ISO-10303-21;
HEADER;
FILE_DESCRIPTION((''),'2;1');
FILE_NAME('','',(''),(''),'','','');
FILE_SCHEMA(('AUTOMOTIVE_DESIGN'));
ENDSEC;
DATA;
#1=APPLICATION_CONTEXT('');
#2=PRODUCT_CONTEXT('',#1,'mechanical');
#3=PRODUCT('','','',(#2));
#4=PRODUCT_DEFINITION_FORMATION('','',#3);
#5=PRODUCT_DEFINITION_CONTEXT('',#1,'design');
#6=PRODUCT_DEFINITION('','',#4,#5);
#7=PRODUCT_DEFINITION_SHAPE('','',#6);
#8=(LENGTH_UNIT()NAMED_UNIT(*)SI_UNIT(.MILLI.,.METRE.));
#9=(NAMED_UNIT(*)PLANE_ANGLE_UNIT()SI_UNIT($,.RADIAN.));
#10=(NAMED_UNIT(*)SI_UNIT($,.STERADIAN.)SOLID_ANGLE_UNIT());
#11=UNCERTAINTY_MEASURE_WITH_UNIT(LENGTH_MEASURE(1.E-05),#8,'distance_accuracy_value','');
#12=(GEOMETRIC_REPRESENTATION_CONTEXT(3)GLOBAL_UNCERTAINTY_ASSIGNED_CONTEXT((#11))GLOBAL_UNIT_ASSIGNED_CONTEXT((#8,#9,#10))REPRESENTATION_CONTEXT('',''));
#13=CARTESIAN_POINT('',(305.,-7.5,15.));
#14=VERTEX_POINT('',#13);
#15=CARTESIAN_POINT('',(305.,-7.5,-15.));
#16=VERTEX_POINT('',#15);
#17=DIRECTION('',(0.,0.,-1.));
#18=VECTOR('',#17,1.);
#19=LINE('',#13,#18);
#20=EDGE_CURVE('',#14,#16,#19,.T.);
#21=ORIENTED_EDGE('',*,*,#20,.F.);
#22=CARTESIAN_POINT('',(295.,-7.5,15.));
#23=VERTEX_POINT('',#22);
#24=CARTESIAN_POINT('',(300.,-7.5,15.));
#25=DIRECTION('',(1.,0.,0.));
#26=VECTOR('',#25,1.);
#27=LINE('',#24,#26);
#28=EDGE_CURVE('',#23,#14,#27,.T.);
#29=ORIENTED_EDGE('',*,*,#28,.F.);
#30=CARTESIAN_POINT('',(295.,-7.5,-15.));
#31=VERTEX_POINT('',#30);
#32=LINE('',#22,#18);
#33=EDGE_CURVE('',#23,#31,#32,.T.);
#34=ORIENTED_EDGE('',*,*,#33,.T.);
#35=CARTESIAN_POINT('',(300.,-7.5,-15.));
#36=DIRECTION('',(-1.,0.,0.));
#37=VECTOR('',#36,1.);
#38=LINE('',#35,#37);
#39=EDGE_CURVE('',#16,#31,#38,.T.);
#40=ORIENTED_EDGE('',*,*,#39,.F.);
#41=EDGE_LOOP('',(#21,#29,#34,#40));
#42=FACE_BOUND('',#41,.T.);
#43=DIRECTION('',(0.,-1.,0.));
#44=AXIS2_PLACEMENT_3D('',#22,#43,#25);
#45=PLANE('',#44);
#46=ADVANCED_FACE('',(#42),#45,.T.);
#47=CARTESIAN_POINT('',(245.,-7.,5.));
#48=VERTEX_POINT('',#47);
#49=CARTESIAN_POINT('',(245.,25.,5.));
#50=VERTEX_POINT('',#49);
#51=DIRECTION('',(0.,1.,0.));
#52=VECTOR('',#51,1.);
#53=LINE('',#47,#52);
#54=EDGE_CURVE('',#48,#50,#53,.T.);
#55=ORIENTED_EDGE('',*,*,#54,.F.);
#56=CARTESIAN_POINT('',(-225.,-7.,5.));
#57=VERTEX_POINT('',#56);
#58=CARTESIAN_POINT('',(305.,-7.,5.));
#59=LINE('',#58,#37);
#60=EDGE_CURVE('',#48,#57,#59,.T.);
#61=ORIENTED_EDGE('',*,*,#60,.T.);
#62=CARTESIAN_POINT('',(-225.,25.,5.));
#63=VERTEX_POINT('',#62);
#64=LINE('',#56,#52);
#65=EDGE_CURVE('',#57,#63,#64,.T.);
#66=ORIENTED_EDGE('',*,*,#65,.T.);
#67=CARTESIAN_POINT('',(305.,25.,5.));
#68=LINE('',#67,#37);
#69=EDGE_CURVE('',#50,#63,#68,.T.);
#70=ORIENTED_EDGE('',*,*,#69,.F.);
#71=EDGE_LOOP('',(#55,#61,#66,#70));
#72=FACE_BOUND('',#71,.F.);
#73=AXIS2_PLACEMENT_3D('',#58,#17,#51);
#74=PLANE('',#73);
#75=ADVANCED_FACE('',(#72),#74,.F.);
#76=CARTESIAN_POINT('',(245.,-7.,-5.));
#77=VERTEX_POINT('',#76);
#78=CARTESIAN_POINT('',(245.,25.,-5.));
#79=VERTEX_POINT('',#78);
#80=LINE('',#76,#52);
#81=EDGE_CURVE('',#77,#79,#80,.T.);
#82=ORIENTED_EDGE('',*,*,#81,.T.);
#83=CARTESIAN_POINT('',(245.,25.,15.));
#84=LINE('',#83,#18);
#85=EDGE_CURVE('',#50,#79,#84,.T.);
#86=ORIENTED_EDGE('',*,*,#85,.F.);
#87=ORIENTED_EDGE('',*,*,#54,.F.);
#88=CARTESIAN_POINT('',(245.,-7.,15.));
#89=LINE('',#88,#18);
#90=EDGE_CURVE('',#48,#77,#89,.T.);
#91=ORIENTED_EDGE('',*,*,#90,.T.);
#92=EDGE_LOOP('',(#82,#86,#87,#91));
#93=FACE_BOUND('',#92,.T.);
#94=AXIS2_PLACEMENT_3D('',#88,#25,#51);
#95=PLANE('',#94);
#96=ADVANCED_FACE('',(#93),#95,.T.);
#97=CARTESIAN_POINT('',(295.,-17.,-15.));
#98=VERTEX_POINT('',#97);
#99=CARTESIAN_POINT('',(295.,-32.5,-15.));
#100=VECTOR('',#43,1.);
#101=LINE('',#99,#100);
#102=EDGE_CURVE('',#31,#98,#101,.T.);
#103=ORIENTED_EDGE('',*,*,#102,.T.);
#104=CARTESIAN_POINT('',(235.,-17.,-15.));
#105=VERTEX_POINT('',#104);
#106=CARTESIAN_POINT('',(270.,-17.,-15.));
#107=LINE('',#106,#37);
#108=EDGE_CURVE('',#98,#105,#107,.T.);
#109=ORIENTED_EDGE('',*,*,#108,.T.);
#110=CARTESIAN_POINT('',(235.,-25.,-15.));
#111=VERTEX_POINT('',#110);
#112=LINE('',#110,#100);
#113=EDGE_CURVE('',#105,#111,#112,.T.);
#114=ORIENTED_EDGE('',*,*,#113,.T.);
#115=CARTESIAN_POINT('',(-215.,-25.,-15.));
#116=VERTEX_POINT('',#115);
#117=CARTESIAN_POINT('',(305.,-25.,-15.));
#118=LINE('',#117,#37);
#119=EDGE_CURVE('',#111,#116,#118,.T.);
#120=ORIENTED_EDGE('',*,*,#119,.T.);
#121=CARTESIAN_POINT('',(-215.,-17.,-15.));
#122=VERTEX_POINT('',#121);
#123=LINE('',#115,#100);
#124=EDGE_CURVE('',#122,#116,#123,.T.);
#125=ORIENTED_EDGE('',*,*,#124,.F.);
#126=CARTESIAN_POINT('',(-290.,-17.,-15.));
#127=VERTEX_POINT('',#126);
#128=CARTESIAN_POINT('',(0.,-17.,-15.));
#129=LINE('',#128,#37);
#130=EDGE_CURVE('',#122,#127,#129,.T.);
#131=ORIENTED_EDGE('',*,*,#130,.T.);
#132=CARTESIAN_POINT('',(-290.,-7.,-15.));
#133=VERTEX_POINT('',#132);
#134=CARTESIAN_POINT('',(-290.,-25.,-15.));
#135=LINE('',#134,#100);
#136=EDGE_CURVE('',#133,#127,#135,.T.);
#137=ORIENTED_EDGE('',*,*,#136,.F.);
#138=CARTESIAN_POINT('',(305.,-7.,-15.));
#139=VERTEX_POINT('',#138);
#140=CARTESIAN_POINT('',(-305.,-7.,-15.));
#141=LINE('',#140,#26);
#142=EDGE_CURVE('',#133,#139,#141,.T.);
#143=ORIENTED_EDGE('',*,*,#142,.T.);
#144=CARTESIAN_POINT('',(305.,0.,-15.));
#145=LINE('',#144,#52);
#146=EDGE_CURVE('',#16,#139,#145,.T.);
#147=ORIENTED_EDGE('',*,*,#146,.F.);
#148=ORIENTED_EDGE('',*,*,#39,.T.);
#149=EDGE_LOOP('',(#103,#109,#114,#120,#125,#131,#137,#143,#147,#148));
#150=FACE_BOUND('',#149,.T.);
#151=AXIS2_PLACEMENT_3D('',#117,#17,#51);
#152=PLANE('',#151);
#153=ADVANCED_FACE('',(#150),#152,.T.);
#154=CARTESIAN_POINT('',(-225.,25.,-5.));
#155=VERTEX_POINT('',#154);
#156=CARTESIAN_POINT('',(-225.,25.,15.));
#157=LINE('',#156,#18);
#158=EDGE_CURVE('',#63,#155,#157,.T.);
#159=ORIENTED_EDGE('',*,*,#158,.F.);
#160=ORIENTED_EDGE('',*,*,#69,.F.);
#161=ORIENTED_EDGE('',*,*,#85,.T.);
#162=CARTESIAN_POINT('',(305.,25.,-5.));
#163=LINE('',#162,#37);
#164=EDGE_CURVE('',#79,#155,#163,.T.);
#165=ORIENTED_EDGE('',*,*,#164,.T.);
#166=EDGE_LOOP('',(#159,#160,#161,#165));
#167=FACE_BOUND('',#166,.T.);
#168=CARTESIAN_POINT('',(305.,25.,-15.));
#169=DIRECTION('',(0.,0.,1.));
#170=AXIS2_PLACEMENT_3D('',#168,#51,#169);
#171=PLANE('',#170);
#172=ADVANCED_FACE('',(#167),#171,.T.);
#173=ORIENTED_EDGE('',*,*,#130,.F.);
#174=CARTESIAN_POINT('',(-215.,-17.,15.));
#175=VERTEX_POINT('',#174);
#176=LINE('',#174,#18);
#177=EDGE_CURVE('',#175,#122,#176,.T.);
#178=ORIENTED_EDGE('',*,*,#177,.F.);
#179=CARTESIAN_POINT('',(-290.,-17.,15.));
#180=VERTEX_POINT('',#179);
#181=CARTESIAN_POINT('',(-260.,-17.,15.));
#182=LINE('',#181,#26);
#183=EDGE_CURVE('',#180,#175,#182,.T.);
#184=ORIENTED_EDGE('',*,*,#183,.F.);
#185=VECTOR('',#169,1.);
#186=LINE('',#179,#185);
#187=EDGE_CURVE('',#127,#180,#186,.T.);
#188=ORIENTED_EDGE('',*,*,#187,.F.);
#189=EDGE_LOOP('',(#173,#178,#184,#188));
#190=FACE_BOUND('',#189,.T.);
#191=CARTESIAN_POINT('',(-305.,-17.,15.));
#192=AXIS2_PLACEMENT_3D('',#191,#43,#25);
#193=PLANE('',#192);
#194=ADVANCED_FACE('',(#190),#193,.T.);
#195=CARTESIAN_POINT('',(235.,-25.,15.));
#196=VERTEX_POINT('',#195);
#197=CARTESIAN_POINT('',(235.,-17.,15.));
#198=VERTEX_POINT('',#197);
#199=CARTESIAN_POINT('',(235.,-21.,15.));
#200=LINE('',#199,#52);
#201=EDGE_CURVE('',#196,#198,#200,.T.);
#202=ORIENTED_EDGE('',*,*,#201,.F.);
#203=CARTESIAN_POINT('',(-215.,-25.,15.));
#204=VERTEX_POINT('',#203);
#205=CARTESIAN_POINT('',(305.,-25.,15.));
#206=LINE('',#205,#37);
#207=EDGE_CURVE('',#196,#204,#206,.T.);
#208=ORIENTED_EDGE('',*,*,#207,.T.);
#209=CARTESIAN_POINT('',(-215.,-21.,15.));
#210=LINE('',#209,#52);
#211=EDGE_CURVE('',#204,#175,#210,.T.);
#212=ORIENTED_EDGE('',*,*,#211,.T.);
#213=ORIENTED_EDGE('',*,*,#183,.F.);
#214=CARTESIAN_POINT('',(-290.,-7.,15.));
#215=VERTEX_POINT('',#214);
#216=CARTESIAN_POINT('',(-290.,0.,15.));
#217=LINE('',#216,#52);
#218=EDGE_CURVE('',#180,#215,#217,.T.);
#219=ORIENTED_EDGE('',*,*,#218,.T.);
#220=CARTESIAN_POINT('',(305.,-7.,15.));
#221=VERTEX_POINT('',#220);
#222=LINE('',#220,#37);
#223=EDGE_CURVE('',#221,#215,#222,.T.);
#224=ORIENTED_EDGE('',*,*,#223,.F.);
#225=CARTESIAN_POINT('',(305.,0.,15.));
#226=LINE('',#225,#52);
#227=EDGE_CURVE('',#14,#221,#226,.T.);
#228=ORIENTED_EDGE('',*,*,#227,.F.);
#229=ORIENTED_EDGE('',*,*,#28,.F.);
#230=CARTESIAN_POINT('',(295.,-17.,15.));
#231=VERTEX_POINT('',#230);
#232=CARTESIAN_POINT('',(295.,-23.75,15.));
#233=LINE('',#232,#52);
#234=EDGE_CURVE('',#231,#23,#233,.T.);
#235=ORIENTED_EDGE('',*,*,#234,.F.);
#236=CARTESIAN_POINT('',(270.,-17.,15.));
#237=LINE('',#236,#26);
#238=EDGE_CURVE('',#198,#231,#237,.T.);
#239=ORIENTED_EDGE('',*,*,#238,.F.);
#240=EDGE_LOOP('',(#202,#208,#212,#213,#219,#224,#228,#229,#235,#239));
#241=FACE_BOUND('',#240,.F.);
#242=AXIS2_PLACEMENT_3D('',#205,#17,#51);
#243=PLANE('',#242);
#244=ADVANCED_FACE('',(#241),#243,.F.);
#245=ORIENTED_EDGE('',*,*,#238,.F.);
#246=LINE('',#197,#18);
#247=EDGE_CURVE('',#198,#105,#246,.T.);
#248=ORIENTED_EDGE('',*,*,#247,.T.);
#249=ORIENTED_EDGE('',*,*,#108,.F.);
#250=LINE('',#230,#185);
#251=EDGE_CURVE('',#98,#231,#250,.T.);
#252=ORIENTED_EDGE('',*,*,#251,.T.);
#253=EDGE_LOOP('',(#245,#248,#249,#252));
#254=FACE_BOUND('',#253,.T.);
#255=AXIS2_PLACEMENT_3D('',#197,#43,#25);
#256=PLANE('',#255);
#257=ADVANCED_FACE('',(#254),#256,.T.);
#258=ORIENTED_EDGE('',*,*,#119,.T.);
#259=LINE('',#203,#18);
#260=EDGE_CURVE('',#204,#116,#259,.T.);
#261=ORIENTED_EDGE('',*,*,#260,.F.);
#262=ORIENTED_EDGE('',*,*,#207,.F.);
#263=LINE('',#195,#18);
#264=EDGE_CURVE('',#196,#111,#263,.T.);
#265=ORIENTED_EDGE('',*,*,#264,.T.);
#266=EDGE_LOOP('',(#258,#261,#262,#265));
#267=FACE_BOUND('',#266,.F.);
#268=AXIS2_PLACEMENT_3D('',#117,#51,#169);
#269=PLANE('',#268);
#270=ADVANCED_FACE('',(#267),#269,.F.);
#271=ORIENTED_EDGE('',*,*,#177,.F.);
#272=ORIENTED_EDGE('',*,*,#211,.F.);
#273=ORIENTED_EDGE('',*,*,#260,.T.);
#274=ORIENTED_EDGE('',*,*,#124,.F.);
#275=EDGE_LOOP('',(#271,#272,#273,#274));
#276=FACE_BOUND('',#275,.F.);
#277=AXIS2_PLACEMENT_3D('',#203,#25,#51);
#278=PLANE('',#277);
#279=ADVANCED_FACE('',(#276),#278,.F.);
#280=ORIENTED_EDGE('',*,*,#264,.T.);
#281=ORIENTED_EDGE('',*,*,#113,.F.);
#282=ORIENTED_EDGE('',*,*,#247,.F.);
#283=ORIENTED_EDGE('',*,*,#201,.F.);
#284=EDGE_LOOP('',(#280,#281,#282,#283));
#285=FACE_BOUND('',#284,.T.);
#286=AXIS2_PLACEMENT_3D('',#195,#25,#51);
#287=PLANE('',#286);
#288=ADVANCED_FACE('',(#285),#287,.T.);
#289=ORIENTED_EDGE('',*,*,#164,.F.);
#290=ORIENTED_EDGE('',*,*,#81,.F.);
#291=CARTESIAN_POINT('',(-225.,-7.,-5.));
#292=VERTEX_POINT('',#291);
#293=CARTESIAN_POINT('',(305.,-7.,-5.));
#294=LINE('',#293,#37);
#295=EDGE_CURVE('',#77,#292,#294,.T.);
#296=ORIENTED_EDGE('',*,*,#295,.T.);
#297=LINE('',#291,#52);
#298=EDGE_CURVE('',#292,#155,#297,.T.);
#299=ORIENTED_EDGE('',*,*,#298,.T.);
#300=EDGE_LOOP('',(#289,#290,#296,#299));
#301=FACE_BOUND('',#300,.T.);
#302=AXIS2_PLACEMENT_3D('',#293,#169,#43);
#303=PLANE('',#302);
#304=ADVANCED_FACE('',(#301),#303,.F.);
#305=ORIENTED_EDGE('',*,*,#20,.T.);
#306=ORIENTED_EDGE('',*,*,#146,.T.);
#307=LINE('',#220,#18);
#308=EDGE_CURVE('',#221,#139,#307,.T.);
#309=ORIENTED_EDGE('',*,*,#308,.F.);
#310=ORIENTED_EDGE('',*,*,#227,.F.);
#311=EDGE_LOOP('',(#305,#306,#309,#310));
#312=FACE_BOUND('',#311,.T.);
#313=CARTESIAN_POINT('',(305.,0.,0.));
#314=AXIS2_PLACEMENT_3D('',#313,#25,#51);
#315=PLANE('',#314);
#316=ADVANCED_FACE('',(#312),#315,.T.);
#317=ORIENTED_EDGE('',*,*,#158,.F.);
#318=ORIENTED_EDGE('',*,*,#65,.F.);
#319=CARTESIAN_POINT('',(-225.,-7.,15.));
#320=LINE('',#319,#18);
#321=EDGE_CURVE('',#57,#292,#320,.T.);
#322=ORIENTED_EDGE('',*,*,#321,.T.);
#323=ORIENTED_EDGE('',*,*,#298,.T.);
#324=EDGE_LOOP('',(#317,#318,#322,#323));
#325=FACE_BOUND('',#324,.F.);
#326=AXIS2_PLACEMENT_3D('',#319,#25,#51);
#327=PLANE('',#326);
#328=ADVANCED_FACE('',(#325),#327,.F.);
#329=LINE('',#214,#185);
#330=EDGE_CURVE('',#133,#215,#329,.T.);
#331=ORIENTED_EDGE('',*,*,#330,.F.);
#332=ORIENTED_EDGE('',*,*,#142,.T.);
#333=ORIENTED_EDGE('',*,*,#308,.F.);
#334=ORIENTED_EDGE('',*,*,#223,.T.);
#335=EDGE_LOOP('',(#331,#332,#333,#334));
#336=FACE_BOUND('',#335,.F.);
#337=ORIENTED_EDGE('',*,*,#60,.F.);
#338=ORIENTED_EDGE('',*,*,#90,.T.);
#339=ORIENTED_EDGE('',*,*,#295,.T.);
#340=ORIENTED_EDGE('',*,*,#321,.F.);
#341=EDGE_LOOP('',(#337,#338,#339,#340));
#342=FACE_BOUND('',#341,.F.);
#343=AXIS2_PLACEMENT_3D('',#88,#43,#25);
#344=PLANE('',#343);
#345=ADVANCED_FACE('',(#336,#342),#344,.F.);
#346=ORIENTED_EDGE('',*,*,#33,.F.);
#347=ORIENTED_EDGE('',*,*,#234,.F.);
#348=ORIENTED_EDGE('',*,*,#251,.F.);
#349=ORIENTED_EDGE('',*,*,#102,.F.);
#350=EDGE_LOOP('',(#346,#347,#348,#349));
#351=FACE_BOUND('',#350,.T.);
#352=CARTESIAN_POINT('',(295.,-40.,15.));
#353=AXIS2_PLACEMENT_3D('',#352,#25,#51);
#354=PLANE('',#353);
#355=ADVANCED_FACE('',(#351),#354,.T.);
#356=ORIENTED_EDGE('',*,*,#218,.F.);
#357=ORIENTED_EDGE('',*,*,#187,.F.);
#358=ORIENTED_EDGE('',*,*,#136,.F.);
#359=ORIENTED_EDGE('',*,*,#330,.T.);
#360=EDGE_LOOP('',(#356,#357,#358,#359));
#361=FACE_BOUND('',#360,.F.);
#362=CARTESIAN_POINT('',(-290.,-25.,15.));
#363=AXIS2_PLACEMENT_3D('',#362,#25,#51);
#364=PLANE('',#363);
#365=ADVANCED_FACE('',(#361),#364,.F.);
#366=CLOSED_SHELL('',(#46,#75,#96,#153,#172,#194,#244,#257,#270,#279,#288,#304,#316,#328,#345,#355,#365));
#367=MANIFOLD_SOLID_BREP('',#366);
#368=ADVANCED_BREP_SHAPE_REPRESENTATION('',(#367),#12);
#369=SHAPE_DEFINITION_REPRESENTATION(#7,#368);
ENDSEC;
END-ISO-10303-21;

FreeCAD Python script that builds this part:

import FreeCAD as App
import Part
import Sketcher


def add_polygon(sketch, points):
    """Adds a closed chain of lines whose ends are joined by coincident constraints."""
    first, n = sketch.GeometryCount, len(points)
    for a, b in zip(points, points[1:] + points[:1]):
        sketch.addGeometry(Part.LineSegment(App.Vector(*a, 0), App.Vector(*b, 0)), False)
    for i in range(n):
        sketch.addConstraint(Sketcher.Constraint("Coincident", first + i, 2, first + (i + 1) % n, 1))

doc = App.newDocument("Part")
body = doc.addObject("PartDesign::Body", "Body")

# Sketch on YZ plane
sketch1 = doc.addObject("Sketcher::SketchObject", "Sketch")
body.addObject(sketch1)
sketch1.AttachmentSupport = (doc.YZ_Plane, [""])
sketch1.MapMode = "FlatFace"
sketch1.AttachmentOffset = App.Placement(App.Vector(0, 0, 305), App.Rotation())
add_polygon(sketch1, [(-25, 15), (-25, -15), (25, -15), (25, 15)])  # lines 0-3
sketch1.addConstraint([
    Sketcher.Constraint("Vertical", 0),
    Sketcher.Constraint("Horizontal", 1),
    Sketcher.Constraint("Vertical", 2),
    Sketcher.Constraint("Horizontal", 3),
    Sketcher.Constraint("Symmetric", 0, 2, 2, 2, -1, 1),
    Sketcher.Constraint("DistanceX", 1, 1, 1, 2, 50.0),
    Sketcher.Constraint("DistanceY", 0, 2, 0, 1, 30.0),
])
pad1 = doc.addObject("PartDesign::Pad", "Pad")
body.addObject(pad1)
pad1.Profile = sketch1
pad1.Length = 610
pad1.Reversed = True

# Sketch on XY plane
sketch2 = doc.addObject("Sketcher::SketchObject", "Sketch001")
body.addObject(sketch2)
sketch2.AttachmentSupport = (doc.XY_Plane, [""])
sketch2.MapMode = "FlatFace"
sketch2.AttachmentOffset = App.Placement(App.Vector(0, 0, 15), App.Rotation())
add_polygon(sketch2, [(235, -17), (235, -25), (305, -25), (305, -17)])  # lines 0-3
add_polygon(sketch2, [(245, 25), (245, -7), (305, -7), (305, 25)])  # lines 4-7
sketch2.addConstraint([
    Sketcher.Constraint("Vertical", 0),
    Sketcher.Constraint("Horizontal", 1),
    Sketcher.Constraint("Vertical", 2),
    Sketcher.Constraint("Horizontal", 3),
    Sketcher.Constraint("Vertical", 4),
    Sketcher.Constraint("Horizontal", 5),
    Sketcher.Constraint("Vertical", 6),
    Sketcher.Constraint("Horizontal", 7),
    Sketcher.Constraint("Symmetric", 1, 2, 6, 2, -1),
    Sketcher.Constraint("DistanceX", 1, 1, 1, 2, 70.0),
    Sketcher.Constraint("DistanceX", 5, 1, 5, 2, 60.0),
    Sketcher.Constraint("DistanceY", 0, 2, 0, 1, 8.0),
    Sketcher.Constraint("DistanceY", 4, 2, 4, 1, 32.0),
    Sketcher.Constraint("DistanceX", -1, 1, 0, 2, 235.0),
    Sketcher.Constraint("DistanceY", 0, 2, -1, 1, 25.0),
])
pocket1 = doc.addObject("PartDesign::Pocket", "Pocket")
body.addObject(pocket1)
pocket1.Profile = sketch2
pocket1.Type = "ThroughAll"

# Sketch on XY plane
sketch3 = doc.addObject("Sketcher::SketchObject", "Sketch002")
body.addObject(sketch3)
sketch3.AttachmentSupport = (doc.XY_Plane, [""])
sketch3.MapMode = "FlatFace"
sketch3.AttachmentOffset = App.Placement(App.Vector(0, 0, 15), App.Rotation())
add_polygon(sketch3, [(-305, 25), (-305, -7), (-225, -7), (-225, 25)])  # lines 0-3
add_polygon(sketch3, [(-305, -17), (-305, -25), (-215, -25), (-215, -17)])  # lines 4-7
sketch3.addConstraint([
    Sketcher.Constraint("Vertical", 0),
    Sketcher.Constraint("Horizontal", 1),
    Sketcher.Constraint("Vertical", 2),
    Sketcher.Constraint("Horizontal", 3),
    Sketcher.Constraint("Vertical", 4),
    Sketcher.Constraint("Horizontal", 5),
    Sketcher.Constraint("Vertical", 6),
    Sketcher.Constraint("Horizontal", 7),
    Sketcher.Constraint("Symmetric", 3, 2, 4, 2, -1),
    Sketcher.Constraint("DistanceX", 1, 1, 1, 2, 80.0),
    Sketcher.Constraint("DistanceX", 5, 1, 5, 2, 90.0),
    Sketcher.Constraint("DistanceY", 0, 2, 0, 1, 32.0),
    Sketcher.Constraint("DistanceY", 4, 2, 4, 1, 8.0),
    Sketcher.Constraint("DistanceX", 0, 2, -1, 1, 305.0),
    Sketcher.Constraint("DistanceY", 0, 2, -1, 1, 7.0),
])
pocket2 = doc.addObject("PartDesign::Pocket", "Pocket001")
body.addObject(pocket2)
pocket2.Profile = sketch3
pocket2.Type = "ThroughAll"

# Sketch on YZ plane
sketch4 = doc.addObject("Sketcher::SketchObject", "Sketch003")
body.addObject(sketch4)
sketch4.AttachmentSupport = (doc.YZ_Plane, [""])
sketch4.MapMode = "FlatFace"
sketch4.AttachmentOffset = App.Placement(App.Vector(0, 0, 305), App.Rotation())
add_polygon(sketch4, [(-7, 15), (-7, 5), (25, 5), (25, 15)])  # lines 0-3
sketch4.addConstraint([
    Sketcher.Constraint("Vertical", 0),
    Sketcher.Constraint("Horizontal", 1),
    Sketcher.Constraint("Vertical", 2),
    Sketcher.Constraint("Horizontal", 3),
    Sketcher.Constraint("DistanceX", 1, 1, 1, 2, 32.0),
    Sketcher.Constraint("DistanceY", 0, 2, 0, 1, 10.0),
    Sketcher.Constraint("DistanceX", 0, 2, -1, 1, 7.0),
    Sketcher.Constraint("DistanceY", -1, 1, 0, 2, 5.0),
])
pocket3 = doc.addObject("PartDesign::Pocket", "Pocket002")
body.addObject(pocket3)
pocket3.Profile = sketch4
pocket3.Type = "ThroughAll"
doc.recompute()

mirrored = doc.addObject("PartDesign::Mirrored", "Mirrored")
body.addObject(mirrored)
mirrored.Originals = [pocket3]
mirrored.MirrorPlane = (doc.XY_Plane, [""])
body.Tip = mirrored

# Sketch on XY plane
sketch5 = doc.addObject("Sketcher::SketchObject", "Sketch004")
body.addObject(sketch5)
sketch5.AttachmentSupport = (doc.XY_Plane, [""])
sketch5.MapMode = "FlatFace"
sketch5.AttachmentOffset = App.Placement(App.Vector(0, 0, 15), App.Rotation())
add_polygon(sketch5, [(-305, 25), (-305, -25), (-290, -25), (-290, 25)])  # lines 0-3
sketch5.addConstraint([
    Sketcher.Constraint("Vertical", 0),
    Sketcher.Constraint("Horizontal", 1),
    Sketcher.Constraint("Vertical", 2),
    Sketcher.Constraint("Horizontal", 3),
    Sketcher.Constraint("DistanceX", 1, 1, 1, 2, 15.0),
    Sketcher.Constraint("DistanceY", 0, 2, 0, 1, 50.0),
    Sketcher.Constraint("DistanceX", 0, 2, -1, 1, 305.0),
    Sketcher.Constraint("DistanceY", 0, 2, -1, 1, 25.0),
])
pocket4 = doc.addObject("PartDesign::Pocket", "Pocket003")
body.addObject(pocket4)
pocket4.Profile = sketch5
pocket4.Type = "ThroughAll"

# Sketch on XY plane
sketch6 = doc.addObject("Sketcher::SketchObject", "Sketch005")
body.addObject(sketch6)
sketch6.AttachmentSupport = (doc.XY_Plane, [""])
sketch6.MapMode = "FlatFace"
sketch6.AttachmentOffset = App.Placement(App.Vector(0, 0, 15), App.Rotation())
add_polygon(sketch6, [(295, -7.5), (295, -40), (305, -40), (305, -7.5)])  # lines 0-3
sketch6.addConstraint([
    Sketcher.Constraint("Vertical", 0),
    Sketcher.Constraint("Horizontal", 1),
    Sketcher.Constraint("Vertical", 2),
    Sketcher.Constraint("Horizontal", 3),
    Sketcher.Constraint("DistanceX", 1, 1, 1, 2, 10.0),
    Sketcher.Constraint("DistanceY", 0, 2, 0, 1, 32.5),
    Sketcher.Constraint("DistanceX", -1, 1, 0, 2, 295.0),
    Sketcher.Constraint("DistanceY", 0, 2, -1, 1, 40.0),
])
pocket5 = doc.addObject("PartDesign::Pocket", "Pocket004")
body.addObject(pocket5)
pocket5.Profile = sketch6
pocket5.Type = "ThroughAll"

doc.recompute()
